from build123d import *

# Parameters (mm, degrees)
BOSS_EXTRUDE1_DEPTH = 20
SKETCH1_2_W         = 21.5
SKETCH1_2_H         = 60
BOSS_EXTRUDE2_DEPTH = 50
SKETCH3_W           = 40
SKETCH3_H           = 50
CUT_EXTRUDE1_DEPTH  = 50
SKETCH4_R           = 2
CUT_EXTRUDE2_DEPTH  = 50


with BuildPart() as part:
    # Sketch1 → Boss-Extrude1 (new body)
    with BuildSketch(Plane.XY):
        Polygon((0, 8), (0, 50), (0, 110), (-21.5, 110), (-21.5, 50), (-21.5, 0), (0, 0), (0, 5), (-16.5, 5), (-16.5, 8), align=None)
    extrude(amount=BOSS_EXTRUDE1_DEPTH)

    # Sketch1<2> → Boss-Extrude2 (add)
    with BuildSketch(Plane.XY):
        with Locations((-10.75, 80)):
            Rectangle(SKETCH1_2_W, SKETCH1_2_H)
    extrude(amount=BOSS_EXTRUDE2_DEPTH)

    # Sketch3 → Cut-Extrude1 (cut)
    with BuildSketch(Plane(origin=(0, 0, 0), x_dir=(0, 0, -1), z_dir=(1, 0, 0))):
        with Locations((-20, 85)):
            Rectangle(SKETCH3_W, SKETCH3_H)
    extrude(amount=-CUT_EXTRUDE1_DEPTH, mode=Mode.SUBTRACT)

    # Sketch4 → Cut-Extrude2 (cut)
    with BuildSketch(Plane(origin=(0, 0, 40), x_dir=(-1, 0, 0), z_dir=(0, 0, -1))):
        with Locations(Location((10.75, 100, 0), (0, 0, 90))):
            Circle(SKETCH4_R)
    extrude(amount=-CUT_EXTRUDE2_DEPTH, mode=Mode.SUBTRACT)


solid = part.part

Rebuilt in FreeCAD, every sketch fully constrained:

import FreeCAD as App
import Part
import Sketcher

V = App.Vector

doc = App.newDocument("Part")
body = doc.addObject("PartDesign::Body", "Body")

# Sketch on XY plane
sketch1 = body.newObject("Sketcher::SketchObject", "Sketch")
sketch1.AttachmentSupport = (doc.getObject("XY_Plane"), [""])
sketch1.MapMode = "FlatFace"
sketch1.addGeometry([
    Part.LineSegment(V(0, 8, 0), V(0, 110, 0)),  # 0
    Part.LineSegment(V(0, 110, 0), V(-21.5, 110, 0)),  # 1
    Part.LineSegment(V(-21.5, 110, 0), V(-21.5, 0, 0)),  # 2
    Part.LineSegment(V(-21.5, 0, 0), V(0, 0, 0)),  # 3
    Part.LineSegment(V(0, 0, 0), V(0, 5, 0)),  # 4
    Part.LineSegment(V(0, 5, 0), V(-16.5, 5, 0)),  # 5
    Part.LineSegment(V(-16.5, 5, 0), V(-16.5, 8, 0)),  # 6
    Part.LineSegment(V(-16.5, 8, 0), V(0, 8, 0)),  # 7
], False)
sketch1.addConstraint([
    Sketcher.Constraint("Coincident", 0, 2, 1, 1),
    Sketcher.Constraint("Coincident", 1, 2, 2, 1),
    Sketcher.Constraint("Coincident", 2, 2, 3, 1),
    Sketcher.Constraint("Coincident", 3, 2, 4, 1),
    Sketcher.Constraint("Coincident", 4, 2, 5, 1),
    Sketcher.Constraint("Coincident", 5, 2, 6, 1),
    Sketcher.Constraint("Coincident", 6, 2, 7, 1),
    Sketcher.Constraint("Coincident", 7, 2, 0, 1),
    Sketcher.Constraint("Vertical", 0),
    Sketcher.Constraint("Horizontal", 1),
    Sketcher.Constraint("Vertical", 2),
    Sketcher.Constraint("Horizontal", 3),
    Sketcher.Constraint("Vertical", 4),
    Sketcher.Constraint("Horizontal", 5),
    Sketcher.Constraint("Vertical", 6),
    Sketcher.Constraint("Horizontal", 7),
    Sketcher.Constraint("Coincident", 3, 2, -1, 1),
    Sketcher.Constraint("PointOnObject", 0, 2, -2),
    Sketcher.Constraint("DistanceY", 0, 1, 0, 2, 102.0),
    Sketcher.Constraint("DistanceY", 2, 2, 2, 1, 110.0),
    Sketcher.Constraint("DistanceY", 4, 1, 4, 2, 5.0),
    Sketcher.Constraint("DistanceX", 1, 2, 1, 1, 21.5),
    Sketcher.Constraint("DistanceX", 5, 2, 5, 1, 16.5),
])
pad1 = body.newObject("PartDesign::Pad", "Pad")
pad1.Profile = sketch1
pad1.Length = 20

# Sketch on XY plane
sketch2 = body.newObject("Sketcher::SketchObject", "Sketch001")
sketch2.AttachmentSupport = (doc.getObject("XY_Plane"), [""])
sketch2.MapMode = "FlatFace"
sketch2.addGeometry([
    Part.LineSegment(V(-21.5, 110, 0), V(-21.5, 50, 0)),
    Part.LineSegment(V(-21.5, 50, 0), V(0, 50, 0)),
    Part.LineSegment(V(0, 50, 0), V(0, 110, 0)),
    Part.LineSegment(V(0, 110, 0), V(-21.5, 110, 0)),
], False)
sketch2.addConstraint([
    Sketcher.Constraint("Coincident", 0, 2, 1, 1),
    Sketcher.Constraint("Coincident", 1, 2, 2, 1),
    Sketcher.Constraint("Coincident", 2, 2, 3, 1),
    Sketcher.Constraint("Coincident", 3, 2, 0, 1),
    Sketcher.Constraint("Vertical", 0),
    Sketcher.Constraint("Horizontal", 1),
    Sketcher.Constraint("Vertical", 2),
    Sketcher.Constraint("Horizontal", 3),
    Sketcher.Constraint("PointOnObject", 1, 2, -2),
    Sketcher.Constraint("DistanceY", 0, 2, 0, 1, 60.0),
    Sketcher.Constraint("DistanceX", 1, 1, 1, 2, 21.5),
    Sketcher.Constraint("DistanceY", -1, 1, 0, 2, 50.0),
])
pad2 = body.newObject("PartDesign::Pad", "Pad001")
pad2.Profile = sketch2
pad2.Length = 50

# Sketch on YZ plane
sketch3 = body.newObject("Sketcher::SketchObject", "Sketch002")
sketch3.AttachmentSupport = (doc.getObject("YZ_Plane"), [""])
sketch3.MapMode = "FlatFace"
sketch3.addGeometry([
    Part.LineSegment(V(110, 40, 0), V(60, 40, 0)),
    Part.LineSegment(V(60, 40, 0), V(60, 0, 0)),
    Part.LineSegment(V(60, 0, 0), V(110, 0, 0)),
    Part.LineSegment(V(110, 0, 0), V(110, 40, 0)),
], False)
sketch3.addConstraint([
    Sketcher.Constraint("Coincident", 0, 2, 1, 1),
    Sketcher.Constraint("Coincident", 1, 2, 2, 1),
    Sketcher.Constraint("Coincident", 2, 2, 3, 1),
    Sketcher.Constraint("Coincident", 3, 2, 0, 1),
    Sketcher.Constraint("Horizontal", 0),
    Sketcher.Constraint("Vertical", 1),
    Sketcher.Constraint("Horizontal", 2),
    Sketcher.Constraint("Vertical", 3),
    Sketcher.Constraint("PointOnObject", 1, 2, -1),
    Sketcher.Constraint("DistanceX", 0, 2, 0, 1, 50.0),
    Sketcher.Constraint("DistanceY", 1, 2, 1, 1, 40.0),
    Sketcher.Constraint("DistanceX", -1, 1, 0, 2, 60.0),
])
pocket1 = body.newObject("PartDesign::Pocket", "Pocket")
pocket1.Profile = sketch3
pocket1.Length = 50

# Sketch on XY plane
sketch4 = body.newObject("Sketcher::SketchObject", "Sketch003")
sketch4.AttachmentSupport = (doc.getObject("XY_Plane"), [""])
sketch4.MapMode = "FlatFace"
sketch4.AttachmentOffset = App.Placement(V(0, 0, 40), App.Rotation())
sketch4.addGeometry(Part.Circle(V(-10.75, 100, 0), V(0, 0, 1), 2), False)
sketch4.addConstraint([
    Sketcher.Constraint("Diameter", 0, 4.0),
    Sketcher.Constraint("DistanceY", -1, 1, 0, 3, 100.0),
    Sketcher.Constraint("DistanceX", 0, 3, -1, 1, 10.75),
])
pocket2 = body.newObject("PartDesign::Pocket", "Pocket001")
pocket2.Profile = sketch4
pocket2.Length = 50
pocket2.Reversed = True

doc.recompute()
